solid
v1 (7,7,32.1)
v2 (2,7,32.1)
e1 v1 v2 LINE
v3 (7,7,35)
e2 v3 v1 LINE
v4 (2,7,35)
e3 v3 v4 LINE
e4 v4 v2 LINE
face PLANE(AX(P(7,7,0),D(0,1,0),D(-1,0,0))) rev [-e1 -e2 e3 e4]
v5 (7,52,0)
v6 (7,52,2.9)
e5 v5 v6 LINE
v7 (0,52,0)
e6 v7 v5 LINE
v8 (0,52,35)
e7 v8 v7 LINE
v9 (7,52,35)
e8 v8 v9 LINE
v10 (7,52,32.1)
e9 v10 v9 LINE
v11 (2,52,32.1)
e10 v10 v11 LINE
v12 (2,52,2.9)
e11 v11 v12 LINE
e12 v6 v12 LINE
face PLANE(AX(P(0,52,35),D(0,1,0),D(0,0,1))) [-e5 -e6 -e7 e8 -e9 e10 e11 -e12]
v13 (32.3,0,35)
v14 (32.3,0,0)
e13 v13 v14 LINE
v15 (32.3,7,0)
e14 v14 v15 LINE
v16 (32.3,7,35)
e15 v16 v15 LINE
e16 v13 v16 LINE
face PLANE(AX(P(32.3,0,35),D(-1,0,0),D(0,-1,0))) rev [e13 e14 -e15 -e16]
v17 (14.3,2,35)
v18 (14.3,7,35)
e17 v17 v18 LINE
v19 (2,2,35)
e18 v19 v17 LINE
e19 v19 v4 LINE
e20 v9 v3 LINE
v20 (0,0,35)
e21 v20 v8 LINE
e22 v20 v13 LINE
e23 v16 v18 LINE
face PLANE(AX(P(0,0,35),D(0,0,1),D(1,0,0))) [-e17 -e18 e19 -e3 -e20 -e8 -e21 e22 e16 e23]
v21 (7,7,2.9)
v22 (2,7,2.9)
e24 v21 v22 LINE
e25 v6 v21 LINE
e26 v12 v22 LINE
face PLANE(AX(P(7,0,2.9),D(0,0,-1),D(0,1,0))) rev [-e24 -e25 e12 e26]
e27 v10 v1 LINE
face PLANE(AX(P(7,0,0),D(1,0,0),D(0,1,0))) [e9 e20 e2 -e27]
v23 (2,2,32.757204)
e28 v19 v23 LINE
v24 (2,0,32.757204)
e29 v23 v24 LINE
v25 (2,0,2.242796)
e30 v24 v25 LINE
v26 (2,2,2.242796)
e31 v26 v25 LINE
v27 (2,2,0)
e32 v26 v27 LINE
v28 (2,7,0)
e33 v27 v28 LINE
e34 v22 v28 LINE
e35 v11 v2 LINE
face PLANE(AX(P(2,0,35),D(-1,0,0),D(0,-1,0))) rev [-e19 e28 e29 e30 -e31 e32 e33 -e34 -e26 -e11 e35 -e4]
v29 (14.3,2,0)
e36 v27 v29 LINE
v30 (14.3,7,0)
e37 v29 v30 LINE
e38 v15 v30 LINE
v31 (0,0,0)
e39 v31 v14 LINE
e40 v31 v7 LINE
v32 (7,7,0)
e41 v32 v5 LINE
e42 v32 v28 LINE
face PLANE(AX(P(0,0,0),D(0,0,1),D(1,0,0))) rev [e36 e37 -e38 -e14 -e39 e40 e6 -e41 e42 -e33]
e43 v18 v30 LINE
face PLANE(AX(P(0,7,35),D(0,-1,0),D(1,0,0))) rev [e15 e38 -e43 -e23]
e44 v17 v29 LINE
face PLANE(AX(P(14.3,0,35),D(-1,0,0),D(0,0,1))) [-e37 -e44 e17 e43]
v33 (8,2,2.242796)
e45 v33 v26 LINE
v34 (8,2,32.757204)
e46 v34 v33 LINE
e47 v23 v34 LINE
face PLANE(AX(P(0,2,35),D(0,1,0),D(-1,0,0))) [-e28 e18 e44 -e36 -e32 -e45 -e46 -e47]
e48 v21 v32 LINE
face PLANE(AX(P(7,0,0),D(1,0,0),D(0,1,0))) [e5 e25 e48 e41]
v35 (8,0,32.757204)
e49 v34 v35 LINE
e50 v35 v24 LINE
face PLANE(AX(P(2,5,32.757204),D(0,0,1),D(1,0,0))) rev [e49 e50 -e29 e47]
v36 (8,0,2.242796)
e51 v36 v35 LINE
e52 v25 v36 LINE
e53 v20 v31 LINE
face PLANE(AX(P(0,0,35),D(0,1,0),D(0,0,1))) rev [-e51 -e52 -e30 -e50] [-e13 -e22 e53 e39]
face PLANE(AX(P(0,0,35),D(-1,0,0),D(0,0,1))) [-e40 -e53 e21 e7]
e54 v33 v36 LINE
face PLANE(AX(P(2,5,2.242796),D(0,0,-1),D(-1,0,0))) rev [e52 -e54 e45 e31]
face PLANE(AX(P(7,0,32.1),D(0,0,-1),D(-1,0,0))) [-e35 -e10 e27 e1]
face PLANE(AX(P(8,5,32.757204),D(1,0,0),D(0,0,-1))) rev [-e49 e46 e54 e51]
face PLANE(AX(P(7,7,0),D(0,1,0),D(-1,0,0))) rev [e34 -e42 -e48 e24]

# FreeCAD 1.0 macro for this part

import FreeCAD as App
import Part
import Sketcher
from FreeCAD import Vector
Q = App.Units.Quantity

doc = App.newDocument("Part")
body = doc.addObject("PartDesign::Body", "Body")

sketch1 = doc.addObject("Sketcher::SketchObject", "Sketch")
body.addObject(sketch1)
sketch1.AttachmentSupport = (doc.XY_Plane, [""])
sketch1.MapMode = "FlatFace"
sketch1.addGeometry(Part.LineSegment(Vector(14.3, 7, 0), Vector(14.3, 2, 0)), False)
sketch1.addGeometry(Part.LineSegment(Vector(14.3, 2, 0), Vector(2, 2, 0)), False)
sketch1.addGeometry(Part.LineSegment(Vector(2, 2, 0), Vector(2, 52, 0)), False)
sketch1.addGeometry(Part.LineSegment(Vector(2, 52, 0), Vector(0, 52, 0)), False)
sketch1.addGeometry(Part.LineSegment(Vector(0, 52, 0), Vector(0, 0, 0)), False)
sketch1.addGeometry(Part.LineSegment(Vector(0, 0, 0), Vector(32.3, 0, 0)), False)
sketch1.addGeometry(Part.LineSegment(Vector(32.3, 0, 0), Vector(32.3, 7, 0)), False)
sketch1.addGeometry(Part.LineSegment(Vector(32.3, 7, 0), Vector(14.3, 7, 0)), False)
sketch1.addConstraint(Sketcher.Constraint("Coincident", 0, 2, 1, 1))
sketch1.addConstraint(Sketcher.Constraint("Coincident", 1, 2, 2, 1))
sketch1.addConstraint(Sketcher.Constraint("Coincident", 2, 2, 3, 1))
sketch1.addConstraint(Sketcher.Constraint("Coincident", 3, 2, 4, 1))
sketch1.addConstraint(Sketcher.Constraint("Coincident", 4, 2, 5, 1))
sketch1.addConstraint(Sketcher.Constraint("Coincident", 5, 2, 6, 1))
sketch1.addConstraint(Sketcher.Constraint("Coincident", 6, 2, 7, 1))
sketch1.addConstraint(Sketcher.Constraint("Coincident", 7, 2, 0, 1))
sketch1.addConstraint(Sketcher.Constraint("Vertical", 0))
sketch1.addConstraint(Sketcher.Constraint("Horizontal", 1))
sketch1.addConstraint(Sketcher.Constraint("Vertical", 2))
sketch1.addConstraint(Sketcher.Constraint("Horizontal", 3))
sketch1.addConstraint(Sketcher.Constraint("Vertical", 4))
sketch1.addConstraint(Sketcher.Constraint("Horizontal", 5))
sketch1.addConstraint(Sketcher.Constraint("Vertical", 6))
sketch1.addConstraint(Sketcher.Constraint("Horizontal", 7))
sketch1.addConstraint(Sketcher.Constraint("Coincident", 4, 2, -1, 1))
sketch1.addConstraint(Sketcher.Constraint("DistanceX", 3, 2, 3, 1, Q("2 mm")))
sketch1.addConstraint(Sketcher.Constraint("DistanceX", 7, 2, 7, 1, Q("18 mm")))
sketch1.addConstraint(Sketcher.Constraint("DistanceY", 0, 2, 0, 1, Q("5 mm")))
sketch1.addConstraint(Sketcher.Constraint("DistanceY", 2, 1, 2, 2, Q("50 mm")))
sketch1.addConstraint(Sketcher.Constraint("DistanceY", 4, 2, 4, 1, Q("52 mm")))
sketch1.addConstraint(Sketcher.Constraint("DistanceX", 1, 2, 1, 1, Q("12.3 mm")))
pad1 = doc.addObject("PartDesign::Pad", "Pad")
body.addObject(pad1)
pad1.Profile = sketch1
pad1.Length = 35

sketch2 = doc.addObject("Sketcher::SketchObject", "Sketch001")
body.addObject(sketch2)
sketch2.AttachmentSupport = (doc.YZ_Plane, [""])
sketch2.MapMode = "FlatFace"
sketch2.AttachmentOffset = App.Placement(Vector(0, 0, 2), App.Rotation())
sketch2.addGeometry(Part.LineSegment(Vector(52, 35, 0), Vector(7, 35, 0)), False)
sketch2.addGeometry(Part.LineSegment(Vector(7, 35, 0), Vector(7, 32.1, 0)), False)
sketch2.addGeometry(Part.LineSegment(Vector(7, 32.1, 0), Vector(52, 32.1, 0)), False)
sketch2.addGeometry(Part.LineSegment(Vector(52, 32.1, 0), Vector(52, 35, 0)), False)
sketch2.addGeometry(Part.LineSegment(Vector(52, 2.9, 0), Vector(7, 2.9, 0)), False)
sketch2.addGeometry(Part.LineSegment(Vector(7, 2.9, 0), Vector(7, 0, 0)), False)
sketch2.addGeometry(Part.LineSegment(Vector(7, 0, 0), Vector(52, 0, 0)), False)
sketch2.addGeometry(Part.LineSegment(Vector(52, 0, 0), Vector(52, 2.9, 0)), False)
sketch2.addConstraint(Sketcher.Constraint("Coincident", 0, 2, 1, 1))
sketch2.addConstraint(Sketcher.Constraint("Coincident", 1, 2, 2, 1))
sketch2.addConstraint(Sketcher.Constraint("Coincident", 2, 2, 3, 1))
sketch2.addConstraint(Sketcher.Constraint("Coincident", 3, 2, 0, 1))
sketch2.addConstraint(Sketcher.Constraint("Coincident", 4, 2, 5, 1))
sketch2.addConstraint(Sketcher.Constraint("Coincident", 5, 2, 6, 1))
sketch2.addConstraint(Sketcher.Constraint("Coincident", 6, 2, 7, 1))
sketch2.addConstraint(Sketcher.Constraint("Coincident", 7, 2, 4, 1))
sketch2.addConstraint(Sketcher.Constraint("Horizontal", 0))
sketch2.addConstraint(Sketcher.Constraint("Vertical", 1))
sketch2.addConstraint(Sketcher.Constraint("Horizontal", 2))
sketch2.addConstraint(Sketcher.Constraint("Vertical", 3))
sketch2.addConstraint(Sketcher.Constraint("Horizontal", 4))
sketch2.addConstraint(Sketcher.Constraint("Vertical", 5))
sketch2.addConstraint(Sketcher.Constraint("Horizontal", 6))
sketch2.addConstraint(Sketcher.Constraint("Vertical", 7))
sketch2.addConstraint(Sketcher.Constraint("PointOnObject", 5, 2, -1))
sketch2.addConstraint(Sketcher.Constraint("Vertical", 1, 2, 4, 2))
sketch2.addConstraint(Sketcher.Constraint("Vertical", 3, 2, 6, 2))
sketch2.addConstraint(Sketcher.Constraint("Equal", 3, 5))
sketch2.addConstraint(Sketcher.Constraint("DistanceX", 0, 2, 0, 1, Q("45 mm")))
sketch2.addConstraint(Sketcher.Constraint("DistanceY", 1, 2, 1, 1, Q("2.9 mm")))
sketch2.addConstraint(Sketcher.Constraint("DistanceX", -1, 1, 0, 2, Q("7 mm")))
sketch2.addConstraint(Sketcher.Constraint("DistanceY", -1, 1, 0, 2, Q("35 mm")))
pad2 = doc.addObject("PartDesign::Pad", "Pad001")
body.addObject(pad2)
pad2.Profile = sketch2
pad2.Length = 5

sketch3 = doc.addObject("Sketcher::SketchObject", "Sketch002")
body.addObject(sketch3)
sketch3.AttachmentSupport = (doc.XZ_Plane, [""])
sketch3.MapMode = "FlatFace"
sketch3.addGeometry(Part.LineSegment(Vector(2, 33, 0), Vector(2, 2, 0)), False)
sketch3.addGeometry(Part.LineSegment(Vector(2, 2, 0), Vector(8, 2, 0)), False)
sketch3.addGeometry(Part.LineSegment(Vector(8, 2, 0), Vector(8, 33, 0)), False)
sketch3.addGeometry(Part.LineSegment(Vector(8, 33, 0), Vector(2, 33, 0)), False)
sketch3.addConstraint(Sketcher.Constraint("Coincident", 0, 2, 1, 1))
sketch3.addConstraint(Sketcher.Constraint("Coincident", 1, 2, 2, 1))
sketch3.addConstraint(Sketcher.Constraint("Coincident", 2, 2, 3, 1))
sketch3.addConstraint(Sketcher.Constraint("Coincident", 3, 2, 0, 1))
sketch3.addConstraint(Sketcher.Constraint("Vertical", 0))
sketch3.addConstraint(Sketcher.Constraint("Horizontal", 1))
sketch3.addConstraint(Sketcher.Constraint("Vertical", 2))
sketch3.addConstraint(Sketcher.Constraint("Horizontal", 3))
sketch3.addConstraint(Sketcher.Constraint("DistanceX", 1, 1, 1, 2, Q("6 mm")))
sketch3.addConstraint(Sketcher.Constraint("DistanceX", -1, 1, 0, 2, Q("2 mm")))
sketch3.addConstraint(Sketcher.Constraint("DistanceY", 0, 2, 0, 1, Q("30.514408 mm")))
sketch3.addConstraint(Sketcher.Constraint("DistanceY", -1, 1, 0, 2, Q("2.242796 mm")))
pocket1 = doc.addObject("PartDesign::Pocket", "Pocket")
body.addObject(pocket1)
pocket1.Profile = sketch3
pocket1.Length = 5

doc.recompute()
